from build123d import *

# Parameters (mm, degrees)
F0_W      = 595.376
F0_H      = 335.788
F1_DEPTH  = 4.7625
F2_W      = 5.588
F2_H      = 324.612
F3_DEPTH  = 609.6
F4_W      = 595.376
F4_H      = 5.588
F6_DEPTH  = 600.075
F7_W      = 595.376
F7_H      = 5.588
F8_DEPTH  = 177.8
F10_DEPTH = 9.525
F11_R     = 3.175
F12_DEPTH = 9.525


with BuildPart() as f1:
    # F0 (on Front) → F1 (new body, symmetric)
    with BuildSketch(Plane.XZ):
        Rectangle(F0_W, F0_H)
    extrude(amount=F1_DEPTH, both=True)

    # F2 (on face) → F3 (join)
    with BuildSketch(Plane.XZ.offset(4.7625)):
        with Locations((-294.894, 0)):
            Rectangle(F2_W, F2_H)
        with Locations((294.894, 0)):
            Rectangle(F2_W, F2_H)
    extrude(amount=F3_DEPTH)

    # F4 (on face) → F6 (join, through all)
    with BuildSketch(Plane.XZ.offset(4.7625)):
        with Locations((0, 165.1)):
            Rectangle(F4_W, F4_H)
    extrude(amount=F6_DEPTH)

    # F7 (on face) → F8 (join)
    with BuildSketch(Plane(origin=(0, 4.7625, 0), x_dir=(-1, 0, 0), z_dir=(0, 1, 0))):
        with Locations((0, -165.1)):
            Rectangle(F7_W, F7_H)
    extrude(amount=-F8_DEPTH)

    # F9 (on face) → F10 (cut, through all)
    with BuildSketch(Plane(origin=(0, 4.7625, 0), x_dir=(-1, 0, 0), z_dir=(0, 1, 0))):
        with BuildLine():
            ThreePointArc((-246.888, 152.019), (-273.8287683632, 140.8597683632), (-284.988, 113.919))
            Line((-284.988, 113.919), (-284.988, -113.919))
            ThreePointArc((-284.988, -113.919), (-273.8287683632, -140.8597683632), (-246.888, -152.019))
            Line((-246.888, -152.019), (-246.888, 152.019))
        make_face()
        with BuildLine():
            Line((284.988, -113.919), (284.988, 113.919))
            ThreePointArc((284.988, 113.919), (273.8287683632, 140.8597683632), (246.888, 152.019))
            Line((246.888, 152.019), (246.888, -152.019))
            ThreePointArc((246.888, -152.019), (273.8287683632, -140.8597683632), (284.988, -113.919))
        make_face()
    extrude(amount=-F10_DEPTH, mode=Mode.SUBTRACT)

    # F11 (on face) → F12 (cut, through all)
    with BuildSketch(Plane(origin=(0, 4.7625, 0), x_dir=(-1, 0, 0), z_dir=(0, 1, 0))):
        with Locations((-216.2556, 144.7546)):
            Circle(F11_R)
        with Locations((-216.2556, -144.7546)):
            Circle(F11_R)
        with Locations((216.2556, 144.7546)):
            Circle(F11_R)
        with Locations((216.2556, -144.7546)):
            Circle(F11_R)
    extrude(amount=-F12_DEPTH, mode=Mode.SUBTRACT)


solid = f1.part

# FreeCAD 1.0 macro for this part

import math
import FreeCAD as App
import Part
import Sketcher
Q = App.Units.Quantity


def add_polygon(sketch, points):
    """Adds a closed chain of lines whose ends are joined by coincident constraints."""
    first, n = sketch.GeometryCount, len(points)
    for a, b in zip(points, points[1:] + points[:1]):
        sketch.addGeometry(Part.LineSegment(App.Vector(*a, 0), App.Vector(*b, 0)), False)
    for i in range(n):
        sketch.addConstraint(Sketcher.Constraint("Coincident", first + i, 2, first + (i + 1) % n, 1))

doc = App.newDocument("Part")
body = doc.addObject("PartDesign::Body", "Body")

# Sketch on XZ plane
sketch1 = body.newObject("Sketcher::SketchObject", "Sketch")
sketch1.AttachmentSupport = (doc.getObject("XZ_Plane"), [""])
sketch1.MapMode = "FlatFace"
add_polygon(sketch1, [(-297.688, 167.894), (-297.688, -167.894), (297.688, -167.894), (297.688, 167.894)])  # lines 0-3
sketch1.addConstraint([
    Sketcher.Constraint("Vertical", 0),
    Sketcher.Constraint("Horizontal", 1),
    Sketcher.Constraint("Vertical", 2),
    Sketcher.Constraint("Horizontal", 3),
    Sketcher.Constraint("Symmetric", 0, 2, 2, 2, -1, 1),
    Sketcher.Constraint("DistanceX", 1, 1, 1, 2, Q("23.44 in")),
    Sketcher.Constraint("DistanceY", 0, 2, 0, 1, Q("13.22 in")),
])
pad1 = body.newObject("PartDesign::Pad", "Pad")
pad1.Profile = sketch1
pad1.Length = Q("0.375 in")
pad1.Midplane = True

# Sketch on XZ plane
sketch2 = body.newObject("Sketcher::SketchObject", "Sketch001")
sketch2.AttachmentSupport = (doc.getObject("XZ_Plane"), [""])
sketch2.MapMode = "FlatFace"
sketch2.AttachmentOffset = App.Placement(App.Vector(0, 0, 0.1875 * 25.4), App.Rotation())
add_polygon(sketch2, [(-297.688, 162.306), (-297.688, -162.306), (-292.1, -162.306), (-292.1, 162.306)])  # lines 0-3
add_polygon(sketch2, [(292.1, 162.306), (292.1, -162.306), (297.688, -162.306), (297.688, 162.306)])  # lines 4-7
sketch2.addConstraint([
    Sketcher.Constraint("Vertical", 0),
    Sketcher.Constraint("Horizontal", 1),
    Sketcher.Constraint("Vertical", 2),
    Sketcher.Constraint("Horizontal", 3),
    Sketcher.Constraint("Vertical", 4),
    Sketcher.Constraint("Horizontal", 5),
    Sketcher.Constraint("Vertical", 6),
    Sketcher.Constraint("Horizontal", 7),
    Sketcher.Constraint("Symmetric", 2, 2, 4, 2, -1, 1),
    Sketcher.Constraint("Symmetric", 0, 2, 6, 2, -1, 1),
    Sketcher.Constraint("Horizontal", 1, 2, 4, 2),
    Sketcher.Constraint("DistanceX", 1, 2, 4, 2, Q("23 in")),
    Sketcher.Constraint("DistanceX", 1, 1, 1, 2, Q("0.22 in")),
    Sketcher.Constraint("DistanceY", 0, 2, 0, 1, Q("12.78 in")),
])
pad2 = body.newObject("PartDesign::Pad", "Pad001")
pad2.Profile = sketch2
pad2.Length = Q("24 in")

# Sketch on XZ plane
sketch3 = body.newObject("Sketcher::SketchObject", "Sketch002")
sketch3.AttachmentSupport = (doc.getObject("XZ_Plane"), [""])
sketch3.MapMode = "FlatFace"
sketch3.AttachmentOffset = App.Placement(App.Vector(0, 0, 0.1875 * 25.4), App.Rotation())
add_polygon(sketch3, [(-297.688, 167.894), (-297.688, 162.306), (297.688, 162.306), (297.688, 167.894)])  # lines 0-3
sketch3.addConstraint([
    Sketcher.Constraint("Vertical", 0),
    Sketcher.Constraint("Horizontal", 1),
    Sketcher.Constraint("Vertical", 2),
    Sketcher.Constraint("Horizontal", 3),
    Sketcher.Constraint("DistanceX", 1, 1, 1, 2, Q("23.44 in")),
    Sketcher.Constraint("DistanceY", 0, 2, 0, 1, Q("0.22 in")),
    Sketcher.Constraint("DistanceX", 0, 2, -1, 1, Q("11.72 in")),
    Sketcher.Constraint("DistanceY", -1, 1, 0, 2, Q("6.39 in")),
])
pad3 = body.newObject("PartDesign::Pad", "Pad002")
pad3.Profile = sketch3
pad3.Length = Q("23.625 in")

# Sketch on XZ plane
sketch4 = body.newObject("Sketcher::SketchObject", "Sketch003")
sketch4.AttachmentSupport = (doc.getObject("XZ_Plane"), [""])
sketch4.MapMode = "FlatFace"
sketch4.AttachmentOffset = App.Placement(App.Vector(0, 0, -0.1875 * 25.4), App.Rotation())
add_polygon(sketch4, [(297.688, -162.306), (297.688, -167.894), (-297.688, -167.894), (-297.688, -162.306)])  # lines 0-3
sketch4.addConstraint([
    Sketcher.Constraint("Vertical", 0),
    Sketcher.Constraint("Horizontal", 1),
    Sketcher.Constraint("Vertical", 2),
    Sketcher.Constraint("Horizontal", 3),
    Sketcher.Constraint("DistanceX", 1, 2, 1, 1, Q("23.44 in")),
    Sketcher.Constraint("DistanceY", 0, 2, 0, 1, Q("0.22 in")),
    Sketcher.Constraint("DistanceX", -1, 1, 0, 2, Q("11.72 in")),
    Sketcher.Constraint("DistanceY", 0, 2, -1, 1, Q("6.61 in")),
])
pad4 = body.newObject("PartDesign::Pad", "Pad003")
pad4.Profile = sketch4
pad4.Length = Q("7 in")

# Sketch on XZ plane
sketch5 = body.newObject("Sketcher::SketchObject", "Sketch004")
sketch5.AttachmentSupport = (doc.getObject("XZ_Plane"), [""])
sketch5.MapMode = "FlatFace"
sketch5.AttachmentOffset = App.Placement(App.Vector(0, 0, -0.1875 * 25.4), App.Rotation())
sketch5.addGeometry([
    Part.ArcOfCircle(Part.Circle(App.Vector(246.888, 113.919, 0), App.Vector(0, 0, 1), 38.1), math.radians(0), math.radians(90)),  # 0
    Part.LineSegment(App.Vector(284.988, 113.919, 0), App.Vector(284.988, -113.919, 0)),  # 1
    Part.ArcOfCircle(Part.Circle(App.Vector(246.888, -113.919, 0), App.Vector(0, 0, 1), 38.1), math.radians(-90), math.radians(0)),  # 2
    Part.LineSegment(App.Vector(246.888, -152.019, 0), App.Vector(246.888, 152.019, 0)),  # 3
    Part.LineSegment(App.Vector(-284.988, -113.919, 0), App.Vector(-284.988, 113.919, 0)),  # 4
    Part.ArcOfCircle(Part.Circle(App.Vector(-246.888, 113.919, 0), App.Vector(0, 0, 1), 38.1), math.radians(90), math.radians(180)),  # 5
    Part.LineSegment(App.Vector(-246.888, 152.019, 0), App.Vector(-246.888, -152.019, 0)),  # 6
    Part.ArcOfCircle(Part.Circle(App.Vector(-246.888, -113.919, 0), App.Vector(0, 0, 1), 38.1), math.radians(180), math.radians(270)),  # 7
], False)
sketch5.addConstraint([
    Sketcher.Constraint("Tangent", 0, 1, 1, 1),
    Sketcher.Constraint("Tangent", 1, 2, 2, 2),
    Sketcher.Constraint("Coincident", 2, 1, 3, 1),
    Sketcher.Constraint("Coincident", 3, 2, 0, 2),
    Sketcher.Constraint("Tangent", 4, 2, 5, 2),
    Sketcher.Constraint("Coincident", 5, 1, 6, 1),
    Sketcher.Constraint("Coincident", 6, 2, 7, 2),
    Sketcher.Constraint("Tangent", 7, 1, 4, 1),
    Sketcher.Constraint("Vertical", 1),
    Sketcher.Constraint("Vertical", 3),
    Sketcher.Constraint("Vertical", 4),
    Sketcher.Constraint("Vertical", 6),
    Sketcher.Constraint("Equal", 0, 2),
    Sketcher.Constraint("Equal", 2, 5),
    Sketcher.Constraint("Equal", 5, 7),
    Sketcher.Constraint("Symmetric", 2, 3, 5, 3, -1, 1),
    Sketcher.Constraint("Symmetric", 3, 2, 6, 2, -1, 1),
    Sketcher.Constraint("Horizontal", 0, 3, 5, 3),
    Sketcher.Constraint("Vertical", 0, 3, 2, 1),
    Sketcher.Constraint("Radius", 0, Q("1.5 in")),
    Sketcher.Constraint("DistanceY", 1, 2, 1, 1, Q("8.97 in")),
    Sketcher.Constraint("DistanceX", -1, 1, 0, 3, Q("9.72 in")),
])
pocket1 = body.newObject("PartDesign::Pocket", "Pocket")
pocket1.Profile = sketch5
pocket1.Type = "ThroughAll"
pocket1.Reversed = True

# Sketch on XZ plane
sketch6 = body.newObject("Sketcher::SketchObject", "Sketch005")
sketch6.AttachmentSupport = (doc.getObject("XZ_Plane"), [""])
sketch6.MapMode = "FlatFace"
sketch6.AttachmentOffset = App.Placement(App.Vector(0, 0, -0.1875 * 25.4), App.Rotation())
sketch6.addGeometry([
    Part.Circle(App.Vector(216.2556, 144.7546, 0), App.Vector(0, 0, 1), 3.175),
    Part.Circle(App.Vector(216.2556, -144.7546, 0), App.Vector(0, 0, 1), 3.175),
    Part.Circle(App.Vector(-216.2556, 144.7546, 0), App.Vector(0, 0, 1), 3.175),
    Part.Circle(App.Vector(-216.2556, -144.7546, 0), App.Vector(0, 0, 1), 3.175),
], False)
sketch6.addConstraint([
    Sketcher.Constraint("Equal", 0, 1),
    Sketcher.Constraint("Equal", 1, 2),
    Sketcher.Constraint("Equal", 2, 3),
    Sketcher.Constraint("Symmetric", 1, 3, 2, 3, -1, 1),
    Sketcher.Constraint("Symmetric", 0, 3, 3, 3, -1, 1),
    Sketcher.Constraint("Symmetric", 0, 3, 2, 3, -2),
    Sketcher.Constraint("Diameter", 0, Q("0.25 in")),
    Sketcher.Constraint("DistanceX", -1, 1, 0, 3, Q("8.514 in")),
    Sketcher.Constraint("DistanceY", -1, 1, 0, 3, Q("5.699 in")),
])
pocket2 = body.newObject("PartDesign::Pocket", "Pocket001")
pocket2.Profile = sketch6
pocket2.Type = "ThroughAll"
pocket2.Reversed = True

doc.recompute()
